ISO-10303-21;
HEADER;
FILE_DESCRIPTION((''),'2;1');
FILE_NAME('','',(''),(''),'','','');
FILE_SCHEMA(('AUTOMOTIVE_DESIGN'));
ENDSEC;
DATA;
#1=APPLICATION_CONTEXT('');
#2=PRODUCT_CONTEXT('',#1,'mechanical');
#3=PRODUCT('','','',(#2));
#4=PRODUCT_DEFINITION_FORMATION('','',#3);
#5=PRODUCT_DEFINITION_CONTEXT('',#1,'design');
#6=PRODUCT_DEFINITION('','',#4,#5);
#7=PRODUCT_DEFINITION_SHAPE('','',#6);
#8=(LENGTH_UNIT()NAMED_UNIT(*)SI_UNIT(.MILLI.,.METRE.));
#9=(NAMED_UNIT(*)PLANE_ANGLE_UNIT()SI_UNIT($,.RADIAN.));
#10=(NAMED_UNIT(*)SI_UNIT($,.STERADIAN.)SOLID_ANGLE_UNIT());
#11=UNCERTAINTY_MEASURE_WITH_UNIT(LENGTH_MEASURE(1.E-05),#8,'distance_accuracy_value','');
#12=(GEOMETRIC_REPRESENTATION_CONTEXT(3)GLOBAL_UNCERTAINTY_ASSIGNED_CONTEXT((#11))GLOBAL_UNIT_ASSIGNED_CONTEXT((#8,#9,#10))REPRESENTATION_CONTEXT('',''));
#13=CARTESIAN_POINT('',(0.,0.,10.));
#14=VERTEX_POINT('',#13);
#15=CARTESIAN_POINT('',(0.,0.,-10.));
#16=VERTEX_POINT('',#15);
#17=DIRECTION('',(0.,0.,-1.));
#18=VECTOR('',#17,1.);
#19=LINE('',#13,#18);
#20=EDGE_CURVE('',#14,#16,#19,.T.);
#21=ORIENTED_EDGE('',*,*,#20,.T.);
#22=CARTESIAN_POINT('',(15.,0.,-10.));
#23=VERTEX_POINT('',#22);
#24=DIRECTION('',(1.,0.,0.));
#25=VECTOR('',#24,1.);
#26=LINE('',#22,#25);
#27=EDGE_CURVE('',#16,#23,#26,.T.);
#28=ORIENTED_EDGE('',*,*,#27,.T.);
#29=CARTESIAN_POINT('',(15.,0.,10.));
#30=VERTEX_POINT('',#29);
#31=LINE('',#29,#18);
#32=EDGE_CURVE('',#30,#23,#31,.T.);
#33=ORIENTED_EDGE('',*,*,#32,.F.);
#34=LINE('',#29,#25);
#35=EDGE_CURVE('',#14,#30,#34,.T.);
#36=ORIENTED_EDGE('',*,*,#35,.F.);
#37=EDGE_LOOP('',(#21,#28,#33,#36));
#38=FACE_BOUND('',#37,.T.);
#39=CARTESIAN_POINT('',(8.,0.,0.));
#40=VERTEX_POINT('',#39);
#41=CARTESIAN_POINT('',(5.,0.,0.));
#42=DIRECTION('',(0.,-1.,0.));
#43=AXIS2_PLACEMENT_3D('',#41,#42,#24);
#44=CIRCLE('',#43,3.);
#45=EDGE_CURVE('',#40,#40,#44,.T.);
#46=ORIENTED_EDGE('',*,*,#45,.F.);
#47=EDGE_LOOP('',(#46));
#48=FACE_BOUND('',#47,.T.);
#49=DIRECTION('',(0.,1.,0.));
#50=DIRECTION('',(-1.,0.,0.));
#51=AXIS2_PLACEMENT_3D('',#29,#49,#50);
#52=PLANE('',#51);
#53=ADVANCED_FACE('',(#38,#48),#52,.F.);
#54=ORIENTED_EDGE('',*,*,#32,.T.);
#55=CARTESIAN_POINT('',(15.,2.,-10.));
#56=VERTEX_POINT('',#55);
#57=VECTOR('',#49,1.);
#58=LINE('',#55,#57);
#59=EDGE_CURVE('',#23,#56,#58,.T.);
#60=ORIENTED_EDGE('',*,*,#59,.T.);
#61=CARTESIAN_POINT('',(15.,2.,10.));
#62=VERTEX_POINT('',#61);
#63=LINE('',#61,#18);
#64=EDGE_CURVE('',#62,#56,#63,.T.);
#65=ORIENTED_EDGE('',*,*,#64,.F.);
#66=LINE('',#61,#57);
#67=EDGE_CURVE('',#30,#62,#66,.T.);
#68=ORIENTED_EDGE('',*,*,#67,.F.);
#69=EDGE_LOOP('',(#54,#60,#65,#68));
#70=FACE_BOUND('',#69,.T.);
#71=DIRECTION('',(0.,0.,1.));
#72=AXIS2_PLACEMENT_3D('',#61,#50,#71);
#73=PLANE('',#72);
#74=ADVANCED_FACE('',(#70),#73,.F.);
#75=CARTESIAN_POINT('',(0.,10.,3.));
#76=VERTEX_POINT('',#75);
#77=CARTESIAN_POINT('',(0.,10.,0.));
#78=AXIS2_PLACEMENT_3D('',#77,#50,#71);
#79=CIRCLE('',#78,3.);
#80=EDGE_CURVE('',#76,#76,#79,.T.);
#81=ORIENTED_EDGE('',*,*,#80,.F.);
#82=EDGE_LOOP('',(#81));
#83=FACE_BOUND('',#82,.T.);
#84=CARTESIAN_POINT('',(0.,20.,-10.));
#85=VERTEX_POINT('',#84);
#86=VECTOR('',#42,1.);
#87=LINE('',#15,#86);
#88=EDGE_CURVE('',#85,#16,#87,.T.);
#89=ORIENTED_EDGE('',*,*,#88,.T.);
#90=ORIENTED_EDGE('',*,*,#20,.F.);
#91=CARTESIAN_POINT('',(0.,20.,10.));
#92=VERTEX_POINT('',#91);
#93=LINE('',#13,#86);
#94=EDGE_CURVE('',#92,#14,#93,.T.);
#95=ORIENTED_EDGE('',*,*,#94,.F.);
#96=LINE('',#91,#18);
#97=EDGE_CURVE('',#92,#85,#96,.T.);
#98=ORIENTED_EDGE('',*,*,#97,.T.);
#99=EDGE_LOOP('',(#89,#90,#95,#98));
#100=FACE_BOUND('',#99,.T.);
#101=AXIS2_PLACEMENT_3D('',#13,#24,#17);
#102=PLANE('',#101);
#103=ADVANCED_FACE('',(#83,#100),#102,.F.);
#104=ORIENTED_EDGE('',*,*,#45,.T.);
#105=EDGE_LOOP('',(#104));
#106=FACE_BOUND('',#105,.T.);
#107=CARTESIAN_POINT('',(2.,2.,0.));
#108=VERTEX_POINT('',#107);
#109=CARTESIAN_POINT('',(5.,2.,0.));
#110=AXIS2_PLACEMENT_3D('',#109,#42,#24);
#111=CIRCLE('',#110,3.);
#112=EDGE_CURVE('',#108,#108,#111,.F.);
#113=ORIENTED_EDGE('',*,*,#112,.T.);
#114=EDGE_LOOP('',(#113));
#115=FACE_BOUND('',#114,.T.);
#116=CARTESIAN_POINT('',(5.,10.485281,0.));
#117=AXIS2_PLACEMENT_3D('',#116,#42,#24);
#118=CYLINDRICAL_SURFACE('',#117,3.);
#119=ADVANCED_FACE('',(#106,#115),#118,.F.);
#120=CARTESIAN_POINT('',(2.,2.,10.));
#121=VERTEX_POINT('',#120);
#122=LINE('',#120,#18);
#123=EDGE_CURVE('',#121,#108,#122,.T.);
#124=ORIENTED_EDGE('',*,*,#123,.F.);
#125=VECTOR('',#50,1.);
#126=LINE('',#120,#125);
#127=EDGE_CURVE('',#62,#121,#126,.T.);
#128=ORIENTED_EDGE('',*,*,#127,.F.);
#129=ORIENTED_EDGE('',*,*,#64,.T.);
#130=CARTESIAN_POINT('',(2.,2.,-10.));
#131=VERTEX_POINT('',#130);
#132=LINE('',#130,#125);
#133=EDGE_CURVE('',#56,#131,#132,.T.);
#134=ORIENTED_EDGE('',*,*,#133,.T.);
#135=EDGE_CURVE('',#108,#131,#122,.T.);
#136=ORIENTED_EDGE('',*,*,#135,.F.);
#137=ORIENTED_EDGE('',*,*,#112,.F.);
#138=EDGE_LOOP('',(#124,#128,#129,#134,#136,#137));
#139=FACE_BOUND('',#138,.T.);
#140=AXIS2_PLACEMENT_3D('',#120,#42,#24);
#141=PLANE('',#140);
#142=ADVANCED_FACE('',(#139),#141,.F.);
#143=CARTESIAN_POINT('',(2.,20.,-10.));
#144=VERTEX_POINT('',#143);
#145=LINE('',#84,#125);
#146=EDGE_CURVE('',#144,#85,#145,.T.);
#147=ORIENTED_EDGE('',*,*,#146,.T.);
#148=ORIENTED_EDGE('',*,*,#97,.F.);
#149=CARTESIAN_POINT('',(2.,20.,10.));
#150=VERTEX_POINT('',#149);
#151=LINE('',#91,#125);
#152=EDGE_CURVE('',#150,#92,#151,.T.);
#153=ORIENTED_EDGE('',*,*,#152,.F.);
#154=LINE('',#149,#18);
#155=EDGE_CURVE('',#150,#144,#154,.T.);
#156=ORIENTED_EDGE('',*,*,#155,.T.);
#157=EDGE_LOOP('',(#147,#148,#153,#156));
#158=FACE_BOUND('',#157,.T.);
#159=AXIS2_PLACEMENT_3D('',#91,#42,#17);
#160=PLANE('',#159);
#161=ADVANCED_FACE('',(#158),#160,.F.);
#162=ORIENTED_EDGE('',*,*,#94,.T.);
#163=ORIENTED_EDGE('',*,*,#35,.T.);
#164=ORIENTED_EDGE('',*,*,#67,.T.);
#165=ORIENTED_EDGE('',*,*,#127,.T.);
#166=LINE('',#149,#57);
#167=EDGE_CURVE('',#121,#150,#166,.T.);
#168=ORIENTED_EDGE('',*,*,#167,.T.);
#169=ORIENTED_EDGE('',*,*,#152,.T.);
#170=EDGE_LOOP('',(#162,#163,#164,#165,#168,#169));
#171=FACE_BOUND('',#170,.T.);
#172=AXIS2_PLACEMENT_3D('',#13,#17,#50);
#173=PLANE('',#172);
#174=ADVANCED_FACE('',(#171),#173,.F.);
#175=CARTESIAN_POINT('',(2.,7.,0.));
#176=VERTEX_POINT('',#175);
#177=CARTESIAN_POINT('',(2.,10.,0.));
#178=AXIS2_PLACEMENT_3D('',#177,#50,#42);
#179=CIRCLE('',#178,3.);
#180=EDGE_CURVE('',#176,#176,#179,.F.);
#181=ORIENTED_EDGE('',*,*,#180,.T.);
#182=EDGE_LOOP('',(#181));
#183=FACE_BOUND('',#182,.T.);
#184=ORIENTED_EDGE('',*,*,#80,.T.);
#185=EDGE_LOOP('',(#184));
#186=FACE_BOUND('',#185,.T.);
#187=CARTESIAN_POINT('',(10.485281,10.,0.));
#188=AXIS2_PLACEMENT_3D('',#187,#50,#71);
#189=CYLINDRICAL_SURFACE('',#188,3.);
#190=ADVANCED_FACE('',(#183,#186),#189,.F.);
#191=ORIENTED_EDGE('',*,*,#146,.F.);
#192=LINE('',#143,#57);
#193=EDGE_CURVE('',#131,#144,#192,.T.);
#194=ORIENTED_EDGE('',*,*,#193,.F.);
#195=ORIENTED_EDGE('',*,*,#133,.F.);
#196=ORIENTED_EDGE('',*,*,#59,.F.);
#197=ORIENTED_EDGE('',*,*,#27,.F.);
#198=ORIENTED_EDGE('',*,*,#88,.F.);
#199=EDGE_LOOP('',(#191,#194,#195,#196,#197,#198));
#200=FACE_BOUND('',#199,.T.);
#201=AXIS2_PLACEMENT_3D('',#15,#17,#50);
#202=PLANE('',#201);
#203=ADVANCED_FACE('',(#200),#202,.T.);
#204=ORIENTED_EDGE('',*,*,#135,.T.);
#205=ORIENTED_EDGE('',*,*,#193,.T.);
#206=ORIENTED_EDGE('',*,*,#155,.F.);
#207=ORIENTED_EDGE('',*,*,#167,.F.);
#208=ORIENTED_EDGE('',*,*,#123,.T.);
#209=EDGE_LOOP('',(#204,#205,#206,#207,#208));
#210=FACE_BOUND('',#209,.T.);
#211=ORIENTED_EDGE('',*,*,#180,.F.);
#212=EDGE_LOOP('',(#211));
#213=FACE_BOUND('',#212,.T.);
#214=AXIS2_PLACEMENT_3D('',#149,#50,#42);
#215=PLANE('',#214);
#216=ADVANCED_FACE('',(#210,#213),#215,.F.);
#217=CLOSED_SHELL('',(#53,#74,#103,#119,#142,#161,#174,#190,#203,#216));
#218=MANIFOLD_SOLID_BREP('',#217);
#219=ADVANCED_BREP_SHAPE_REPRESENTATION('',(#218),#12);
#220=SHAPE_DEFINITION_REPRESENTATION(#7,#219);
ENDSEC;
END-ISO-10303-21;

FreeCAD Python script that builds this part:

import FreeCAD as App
import Part
import Sketcher

V = App.Vector


def add_polygon(sketch, points):
    """Adds a closed chain of lines whose ends are joined by coincident constraints."""
    first, n = sketch.GeometryCount, len(points)
    for a, b in zip(points, points[1:] + points[:1]):
        sketch.addGeometry(Part.LineSegment(App.Vector(*a, 0), App.Vector(*b, 0)), False)
    for i in range(n):
        sketch.addConstraint(Sketcher.Constraint("Coincident", first + i, 2, first + (i + 1) % n, 1))

doc = App.newDocument("Part")
params = doc.addObject("Spreadsheet::Sheet", "Params")
for row, (alias, value) in enumerate([
    ("sketch1_width", "15 mm"),
    ("sketch1_width2", "13 mm"),
    ("sketch1_height", "20 mm"),
    ("pad1_length", "20 mm"),
    ("sketch2_diameter", "6 mm"),
    ("pocket1_length", "2 mm"),
    ("sketch3_diameter", "6 mm"),
    ("pocket2_length", "2 mm"),
], start=1):
    params.set(f"A{row}", alias)
    params.set(f"B{row}", "=" + value)
    params.setAlias(f"B{row}", alias)

body = doc.addObject("PartDesign::Body", "Body")

sketch1 = doc.addObject("Sketcher::SketchObject", "Sketch")
body.addObject(sketch1)
sketch1.AttachmentSupport = (doc.XY_Plane, [""])
sketch1.MapMode = "FlatFace"
add_polygon(sketch1, [(0, 20), (0, 0), (15, 0), (15, 2), (2, 2), (2, 20)])
sketch1.addConstraint([
    Sketcher.Constraint("Vertical", 0),
    Sketcher.Constraint("Horizontal", 1),
    Sketcher.Constraint("Vertical", 2),
    Sketcher.Constraint("Horizontal", 3),
    Sketcher.Constraint("Vertical", 4),
    Sketcher.Constraint("Horizontal", 5),
    Sketcher.Constraint("Coincident", 0, 2, -1, 1),
    Sketcher.Constraint("Equal", 5, 2),
    Sketcher.Constraint("DistanceX", 1, 1, 1, 2, 15.0),
    Sketcher.Constraint("DistanceX", 3, 2, 3, 1, 13.0),
    Sketcher.Constraint("DistanceY", 0, 2, 0, 1, 20.0),
])
sketch1.setExpression("Constraints[14]", "Params.sketch1_width")
sketch1.setExpression("Constraints[15]", "Params.sketch1_width2")
sketch1.setExpression("Constraints[16]", "Params.sketch1_height")
pad1 = doc.addObject("PartDesign::Pad", "Pad")
body.addObject(pad1)
pad1.Profile = sketch1
pad1.setExpression("Length", "Params.pad1_length")
pad1.Midplane = True

sketch2 = doc.addObject("Sketcher::SketchObject", "Sketch001")
body.addObject(sketch2)
sketch2.AttachmentSupport = (doc.YZ_Plane, [""])
sketch2.MapMode = "FlatFace"
sketch2.addGeometry(Part.Circle(V(10, 0, 0), V(0, 0, 1), 3), False)
sketch2.addConstraint([
    Sketcher.Constraint("PointOnObject", 0, 3, -1),
    Sketcher.Constraint("Diameter", 0, 6.0),
    Sketcher.Constraint("DistanceX", -1, 1, 0, 3, 10.0),
])
sketch2.setExpression("Constraints[1]", "Params.sketch2_diameter")
pocket1 = doc.addObject("PartDesign::Pocket", "Pocket")
body.addObject(pocket1)
pocket1.Profile = sketch2
pocket1.setExpression("Length", "Params.pocket1_length")
pocket1.Reversed = True

sketch3 = doc.addObject("Sketcher::SketchObject", "Sketch002")
body.addObject(sketch3)
sketch3.AttachmentSupport = (doc.XZ_Plane, [""])
sketch3.MapMode = "FlatFace"
sketch3.addGeometry(Part.Circle(V(5, 0, 0), V(0, 0, 1), 3), False)
sketch3.addConstraint([
    Sketcher.Constraint("PointOnObject", 0, 3, -1),
    Sketcher.Constraint("Diameter", 0, 6.0),
    Sketcher.Constraint("DistanceX", -1, 1, 0, 3, 5.0),
])
sketch3.setExpression("Constraints[1]", "Params.sketch3_diameter")
pocket2 = doc.addObject("PartDesign::Pocket", "Pocket001")
body.addObject(pocket2)
pocket2.Profile = sketch3
pocket2.setExpression("Length", "Params.pocket2_length")

doc.recompute()
